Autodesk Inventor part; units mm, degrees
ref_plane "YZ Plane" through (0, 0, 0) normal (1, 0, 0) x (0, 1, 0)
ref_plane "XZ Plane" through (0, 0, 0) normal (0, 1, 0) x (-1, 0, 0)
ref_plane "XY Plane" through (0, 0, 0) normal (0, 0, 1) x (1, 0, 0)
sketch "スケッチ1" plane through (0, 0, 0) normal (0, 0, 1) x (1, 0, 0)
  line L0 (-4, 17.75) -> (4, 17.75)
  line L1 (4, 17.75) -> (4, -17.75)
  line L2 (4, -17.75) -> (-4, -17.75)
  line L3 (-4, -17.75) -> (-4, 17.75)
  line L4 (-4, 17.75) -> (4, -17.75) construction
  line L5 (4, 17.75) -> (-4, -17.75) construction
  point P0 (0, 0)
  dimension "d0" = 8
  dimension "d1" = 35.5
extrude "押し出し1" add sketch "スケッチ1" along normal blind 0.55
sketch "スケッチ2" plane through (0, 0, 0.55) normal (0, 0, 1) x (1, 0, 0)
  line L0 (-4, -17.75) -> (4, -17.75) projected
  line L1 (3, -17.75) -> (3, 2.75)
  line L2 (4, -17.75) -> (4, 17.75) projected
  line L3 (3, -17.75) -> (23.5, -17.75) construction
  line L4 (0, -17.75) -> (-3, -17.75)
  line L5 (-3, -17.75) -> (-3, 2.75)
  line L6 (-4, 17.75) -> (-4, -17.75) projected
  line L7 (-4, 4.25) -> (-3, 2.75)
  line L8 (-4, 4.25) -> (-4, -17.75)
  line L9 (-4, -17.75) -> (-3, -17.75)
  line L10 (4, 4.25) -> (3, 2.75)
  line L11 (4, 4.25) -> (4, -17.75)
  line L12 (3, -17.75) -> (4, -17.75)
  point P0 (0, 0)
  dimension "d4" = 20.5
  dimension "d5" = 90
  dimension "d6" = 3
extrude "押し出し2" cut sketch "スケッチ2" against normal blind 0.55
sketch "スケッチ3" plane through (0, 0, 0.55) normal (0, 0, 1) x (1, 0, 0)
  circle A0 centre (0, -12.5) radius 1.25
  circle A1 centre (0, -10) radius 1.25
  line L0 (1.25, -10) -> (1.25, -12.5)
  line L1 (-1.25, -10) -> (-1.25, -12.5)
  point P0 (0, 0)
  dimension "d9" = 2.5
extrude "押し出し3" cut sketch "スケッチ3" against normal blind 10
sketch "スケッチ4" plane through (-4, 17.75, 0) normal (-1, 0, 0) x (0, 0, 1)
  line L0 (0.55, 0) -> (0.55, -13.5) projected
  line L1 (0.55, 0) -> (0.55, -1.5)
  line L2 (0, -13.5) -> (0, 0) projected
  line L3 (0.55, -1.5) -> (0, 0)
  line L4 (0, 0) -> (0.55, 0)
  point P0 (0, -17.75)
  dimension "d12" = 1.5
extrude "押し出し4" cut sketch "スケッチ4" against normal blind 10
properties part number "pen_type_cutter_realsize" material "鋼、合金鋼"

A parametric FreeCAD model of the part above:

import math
import FreeCAD as App
import Part
import Sketcher

V = App.Vector
Q = App.Units.Quantity

doc = App.newDocument("Part")
params = doc.addObject("Spreadsheet::Sheet", "Params")
for row, (alias, value) in enumerate([
    ("sketch1_width", "8 mm"),
    ("sketch1_height", "35.5 mm"),
    ("pad1_length", "0.55 mm"),
    ("sketch2_height", "20.5 mm"),
    ("sketch2_width", "1 mm"),
    ("sketch2_height2", "22 mm"),
    ("pocket1_length", "0.55 mm"),
    ("sketch3_radius", "1.25 mm"),
    ("sketch3_height", "2.5 mm"),
    ("pocket2_length", "10 mm"),
    ("sketch4_width", "1.5 mm"),
    ("sketch4_height", "0.55 mm"),
    ("pocket3_length", "10 mm"),
], start=1):
    params.set(f"A{row}", alias)
    params.set(f"B{row}", "=" + value)
    params.setAlias(f"B{row}", alias)

body = doc.addObject("PartDesign::Body", "Body")

sketch1 = body.newObject("Sketcher::SketchObject", "Sketch")
sketch1.AttachmentSupport = (doc.getObject("XY_Plane"), [""])
sketch1.MapMode = "FlatFace"
sketch1.addGeometry([
    Part.LineSegment(V(4, 18, 0), V(-4, 18, 0)),
    Part.LineSegment(V(-4, 18, 0), V(-4, -18, 0)),
    Part.LineSegment(V(-4, -18, 0), V(4, -18, 0)),
    Part.LineSegment(V(4, -18, 0), V(4, 18, 0)),
], False)
sketch1.addConstraint([
    Sketcher.Constraint("Coincident", 0, 2, 1, 1),
    Sketcher.Constraint("Coincident", 1, 2, 2, 1),
    Sketcher.Constraint("Coincident", 2, 2, 3, 1),
    Sketcher.Constraint("Coincident", 3, 2, 0, 1),
    Sketcher.Constraint("Horizontal", 0),
    Sketcher.Constraint("Vertical", 1),
    Sketcher.Constraint("Horizontal", 2),
    Sketcher.Constraint("Vertical", 3),
    Sketcher.Constraint("Symmetric", 0, 2, 2, 2, -1, 1),
    Sketcher.Constraint("DistanceX", 0, 2, 0, 1, Q("8 mm")),
    Sketcher.Constraint("DistanceY", 1, 2, 1, 1, Q("35.5 mm")),
])
sketch1.setExpression("Constraints[9]", "Params.sketch1_width")
sketch1.setExpression("Constraints[10]", "Params.sketch1_height")
pad1 = body.newObject("PartDesign::Pad", "Pad")
pad1.Profile = sketch1
pad1.setExpression("Length", "Params.pad1_length")

sketch2 = body.newObject("Sketcher::SketchObject", "Sketch001")
sketch2.AttachmentSupport = (doc.getObject("XY_Plane"), [""])
sketch2.MapMode = "FlatFace"
sketch2.AttachmentOffset = App.Placement(V(0, 0, 0.55), App.Rotation())
sketch2.addGeometry([
    Part.LineSegment(V(-4, 4.2, 0), V(-4, -17.8, 0)),
    Part.LineSegment(V(-4, -17.8, 0), V(-3, -17.8, 0)),
    Part.LineSegment(V(-3, -17.8, 0), V(-3, 2.8, 0)),
    Part.LineSegment(V(-3, 2.8, 0), V(-4, 4.2, 0)),
    Part.LineSegment(V(3, 2.8, 0), V(3, -17.8, 0)),
    Part.LineSegment(V(3, -17.8, 0), V(4, -17.8, 0)),
    Part.LineSegment(V(4, -17.8, 0), V(4, 4.2, 0)),
    Part.LineSegment(V(4, 4.2, 0), V(3, 2.8, 0)),
], False)
sketch2.addConstraint([
    Sketcher.Constraint("Coincident", 0, 2, 1, 1),
    Sketcher.Constraint("Coincident", 1, 2, 2, 1),
    Sketcher.Constraint("Coincident", 2, 2, 3, 1),
    Sketcher.Constraint("Coincident", 3, 2, 0, 1),
    Sketcher.Constraint("Coincident", 4, 2, 5, 1),
    Sketcher.Constraint("Coincident", 5, 2, 6, 1),
    Sketcher.Constraint("Coincident", 6, 2, 7, 1),
    Sketcher.Constraint("Coincident", 7, 2, 4, 1),
    Sketcher.Constraint("Vertical", 0),
    Sketcher.Constraint("Horizontal", 1),
    Sketcher.Constraint("Vertical", 2),
    Sketcher.Constraint("Vertical", 4),
    Sketcher.Constraint("Horizontal", 5),
    Sketcher.Constraint("Vertical", 6),
    Sketcher.Constraint("Symmetric", 1, 2, 4, 2, -2),
    Sketcher.Constraint("Symmetric", 3, 2, 6, 2, -2),
    Sketcher.Constraint("Horizontal", 2, 2, 7, 2),
    Sketcher.Constraint("DistanceY", 2, 1, 2, 2, Q("20.5 mm")),
    Sketcher.Constraint("DistanceX", 1, 2, -1, 1, Q("3 mm")),
    Sketcher.Constraint("DistanceX", 1, 1, 1, 2, Q("1 mm")),
    Sketcher.Constraint("DistanceY", 0, 2, 0, 1, Q("22 mm")),
    Sketcher.Constraint("DistanceY", 0, 2, -1, 1, Q("17.75 mm")),
])
sketch2.setExpression("Constraints[17]", "Params.sketch2_height")
sketch2.setExpression("Constraints[19]", "Params.sketch2_width")
sketch2.setExpression("Constraints[20]", "Params.sketch2_height2")
pocket1 = body.newObject("PartDesign::Pocket", "Pocket")
pocket1.Profile = sketch2
pocket1.setExpression("Length", "Params.pocket1_length")

sketch3 = body.newObject("Sketcher::SketchObject", "Sketch002")
sketch3.AttachmentSupport = (doc.getObject("XY_Plane"), [""])
sketch3.MapMode = "FlatFace"
sketch3.AttachmentOffset = App.Placement(V(0, 0, 0.55), App.Rotation())
sketch3.addGeometry([
    Part.ArcOfCircle(Part.Circle(V(0, -12.5, 0), V(0, 0, 1), 1.2), math.radians(180), math.radians(360)),
    Part.LineSegment(V(1.2, -12.5, 0), V(1.2, -10, 0)),
    Part.ArcOfCircle(Part.Circle(V(0, -10, 0), V(0, 0, 1), 1.2), math.radians(0), math.radians(180)),
    Part.LineSegment(V(-1.2, -10, 0), V(-1.2, -12.5, 0)),
], False)
sketch3.addConstraint([
    Sketcher.Constraint("Tangent", 0, 2, 1, 1),
    Sketcher.Constraint("Tangent", 1, 2, 2, 1),
    Sketcher.Constraint("Tangent", 2, 2, 3, 1),
    Sketcher.Constraint("Tangent", 3, 2, 0, 1),
    Sketcher.Constraint("Vertical", 1),
    Sketcher.Constraint("Vertical", 3),
    Sketcher.Constraint("PointOnObject", 0, 3, -2),
    Sketcher.Constraint("Radius", 0, Q("1.25 mm")),
    Sketcher.Constraint("DistanceY", 1, 1, 1, 2, Q("2.5 mm")),
    Sketcher.Constraint("DistanceY", 2, 3, -1, 1, Q("10 mm")),
])
sketch3.setExpression("Constraints[7]", "Params.sketch3_radius")
sketch3.setExpression("Constraints[8]", "Params.sketch3_height")
pocket2 = body.newObject("PartDesign::Pocket", "Pocket001")
pocket2.Profile = sketch3
pocket2.setExpression("Length", "Params.pocket2_length")

sketch4 = body.newObject("Sketcher::SketchObject", "Sketch003")
sketch4.AttachmentSupport = (doc.getObject("YZ_Plane"), [""])
sketch4.MapMode = "FlatFace"
sketch4.AttachmentOffset = App.Placement(V(0, 0, -4), App.Rotation())
sketch4.addGeometry([
    Part.LineSegment(V(16.2, 0.6, 0), V(17.8, 0.6, 0)),
    Part.LineSegment(V(17.8, 0.6, 0), V(17.8, 0, 0)),
    Part.LineSegment(V(17.8, 0, 0), V(16.2, 0.6, 0)),
], False)
sketch4.addConstraint([
    Sketcher.Constraint("Coincident", 0, 2, 1, 1),
    Sketcher.Constraint("Coincident", 1, 2, 2, 1),
    Sketcher.Constraint("Coincident", 2, 2, 0, 1),
    Sketcher.Constraint("Horizontal", 0),
    Sketcher.Constraint("Vertical", 1),
    Sketcher.Constraint("PointOnObject", 1, 2, -1),
    Sketcher.Constraint("DistanceX", 0, 1, 0, 2, Q("1.5 mm")),
    Sketcher.Constraint("DistanceY", 1, 2, 1, 1, Q("0.55 mm")),
    Sketcher.Constraint("DistanceX", -1, 1, 0, 2, Q("17.75 mm")),
])
sketch4.setExpression("Constraints[6]", "Params.sketch4_width")
sketch4.setExpression("Constraints[7]", "Params.sketch4_height")
pocket3 = body.newObject("PartDesign::Pocket", "Pocket002")
pocket3.Profile = sketch4
pocket3.setExpression("Length", "Params.pocket3_length")
pocket3.Reversed = True

doc.recompute()
